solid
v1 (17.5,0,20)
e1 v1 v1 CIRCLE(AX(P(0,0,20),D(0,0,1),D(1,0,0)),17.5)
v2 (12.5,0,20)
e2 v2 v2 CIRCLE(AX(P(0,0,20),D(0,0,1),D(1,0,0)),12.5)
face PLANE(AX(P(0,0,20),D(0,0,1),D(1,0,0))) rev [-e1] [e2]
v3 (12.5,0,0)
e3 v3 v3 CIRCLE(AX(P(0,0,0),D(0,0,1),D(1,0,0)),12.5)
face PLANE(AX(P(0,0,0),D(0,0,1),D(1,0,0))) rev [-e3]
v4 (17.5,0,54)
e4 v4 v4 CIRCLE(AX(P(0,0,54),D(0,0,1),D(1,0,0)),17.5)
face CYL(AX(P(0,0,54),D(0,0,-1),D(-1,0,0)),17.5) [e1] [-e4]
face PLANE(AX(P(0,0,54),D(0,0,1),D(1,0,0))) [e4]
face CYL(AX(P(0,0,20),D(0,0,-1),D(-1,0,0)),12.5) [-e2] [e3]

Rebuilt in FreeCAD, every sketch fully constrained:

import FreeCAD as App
import Part
import Sketcher

doc = App.newDocument("Part")
params = doc.addObject("Spreadsheet::Sheet", "Params")
for row, (alias, value) in enumerate([
    ("sketch1_diameter", "25 mm"),
    ("pad1_length", "20 mm"),
    ("sketch2_diameter", "35 mm"),
    ("pad2_length", "34 mm"),
], start=1):
    params.set(f"A{row}", alias)
    params.set(f"B{row}", "=" + value)
    params.setAlias(f"B{row}", alias)

body = doc.addObject("PartDesign::Body", "Body")

# Sketch on XY plane
sketch1 = doc.addObject("Sketcher::SketchObject", "Sketch")
body.addObject(sketch1)
sketch1.AttachmentSupport = (doc.XY_Plane, [""])
sketch1.MapMode = "FlatFace"
sketch1.addGeometry(Part.Circle(App.Vector(0, 0, 0), App.Vector(0, 0, 1), 12.5), False)
sketch1.addConstraint([
    Sketcher.Constraint("Coincident", 0, 3, -1, 1),
    Sketcher.Constraint("Diameter", 0, 25.0),
])
sketch1.setExpression("Constraints[1]", "Params.sketch1_diameter")
pad1 = doc.addObject("PartDesign::Pad", "Pad")
body.addObject(pad1)
pad1.Profile = sketch1
pad1.setExpression("Length", "Params.pad1_length")

# Sketch on XY plane
sketch2 = doc.addObject("Sketcher::SketchObject", "Sketch001")
body.addObject(sketch2)
sketch2.AttachmentSupport = (doc.XY_Plane, [""])
sketch2.MapMode = "FlatFace"
sketch2.AttachmentOffset = App.Placement(App.Vector(0, 0, 20), App.Rotation())
sketch2.addGeometry(Part.Circle(App.Vector(0, 0, 0), App.Vector(0, 0, 1), 17.5), False)
sketch2.addConstraint([
    Sketcher.Constraint("Coincident", 0, 3, -1, 1),
    Sketcher.Constraint("Diameter", 0, 35.0),
])
sketch2.setExpression("Constraints[1]", "Params.sketch2_diameter")
pad2 = doc.addObject("PartDesign::Pad", "Pad001")
body.addObject(pad2)
pad2.Profile = sketch2
pad2.setExpression("Length", "Params.pad2_length")

doc.recompute()
